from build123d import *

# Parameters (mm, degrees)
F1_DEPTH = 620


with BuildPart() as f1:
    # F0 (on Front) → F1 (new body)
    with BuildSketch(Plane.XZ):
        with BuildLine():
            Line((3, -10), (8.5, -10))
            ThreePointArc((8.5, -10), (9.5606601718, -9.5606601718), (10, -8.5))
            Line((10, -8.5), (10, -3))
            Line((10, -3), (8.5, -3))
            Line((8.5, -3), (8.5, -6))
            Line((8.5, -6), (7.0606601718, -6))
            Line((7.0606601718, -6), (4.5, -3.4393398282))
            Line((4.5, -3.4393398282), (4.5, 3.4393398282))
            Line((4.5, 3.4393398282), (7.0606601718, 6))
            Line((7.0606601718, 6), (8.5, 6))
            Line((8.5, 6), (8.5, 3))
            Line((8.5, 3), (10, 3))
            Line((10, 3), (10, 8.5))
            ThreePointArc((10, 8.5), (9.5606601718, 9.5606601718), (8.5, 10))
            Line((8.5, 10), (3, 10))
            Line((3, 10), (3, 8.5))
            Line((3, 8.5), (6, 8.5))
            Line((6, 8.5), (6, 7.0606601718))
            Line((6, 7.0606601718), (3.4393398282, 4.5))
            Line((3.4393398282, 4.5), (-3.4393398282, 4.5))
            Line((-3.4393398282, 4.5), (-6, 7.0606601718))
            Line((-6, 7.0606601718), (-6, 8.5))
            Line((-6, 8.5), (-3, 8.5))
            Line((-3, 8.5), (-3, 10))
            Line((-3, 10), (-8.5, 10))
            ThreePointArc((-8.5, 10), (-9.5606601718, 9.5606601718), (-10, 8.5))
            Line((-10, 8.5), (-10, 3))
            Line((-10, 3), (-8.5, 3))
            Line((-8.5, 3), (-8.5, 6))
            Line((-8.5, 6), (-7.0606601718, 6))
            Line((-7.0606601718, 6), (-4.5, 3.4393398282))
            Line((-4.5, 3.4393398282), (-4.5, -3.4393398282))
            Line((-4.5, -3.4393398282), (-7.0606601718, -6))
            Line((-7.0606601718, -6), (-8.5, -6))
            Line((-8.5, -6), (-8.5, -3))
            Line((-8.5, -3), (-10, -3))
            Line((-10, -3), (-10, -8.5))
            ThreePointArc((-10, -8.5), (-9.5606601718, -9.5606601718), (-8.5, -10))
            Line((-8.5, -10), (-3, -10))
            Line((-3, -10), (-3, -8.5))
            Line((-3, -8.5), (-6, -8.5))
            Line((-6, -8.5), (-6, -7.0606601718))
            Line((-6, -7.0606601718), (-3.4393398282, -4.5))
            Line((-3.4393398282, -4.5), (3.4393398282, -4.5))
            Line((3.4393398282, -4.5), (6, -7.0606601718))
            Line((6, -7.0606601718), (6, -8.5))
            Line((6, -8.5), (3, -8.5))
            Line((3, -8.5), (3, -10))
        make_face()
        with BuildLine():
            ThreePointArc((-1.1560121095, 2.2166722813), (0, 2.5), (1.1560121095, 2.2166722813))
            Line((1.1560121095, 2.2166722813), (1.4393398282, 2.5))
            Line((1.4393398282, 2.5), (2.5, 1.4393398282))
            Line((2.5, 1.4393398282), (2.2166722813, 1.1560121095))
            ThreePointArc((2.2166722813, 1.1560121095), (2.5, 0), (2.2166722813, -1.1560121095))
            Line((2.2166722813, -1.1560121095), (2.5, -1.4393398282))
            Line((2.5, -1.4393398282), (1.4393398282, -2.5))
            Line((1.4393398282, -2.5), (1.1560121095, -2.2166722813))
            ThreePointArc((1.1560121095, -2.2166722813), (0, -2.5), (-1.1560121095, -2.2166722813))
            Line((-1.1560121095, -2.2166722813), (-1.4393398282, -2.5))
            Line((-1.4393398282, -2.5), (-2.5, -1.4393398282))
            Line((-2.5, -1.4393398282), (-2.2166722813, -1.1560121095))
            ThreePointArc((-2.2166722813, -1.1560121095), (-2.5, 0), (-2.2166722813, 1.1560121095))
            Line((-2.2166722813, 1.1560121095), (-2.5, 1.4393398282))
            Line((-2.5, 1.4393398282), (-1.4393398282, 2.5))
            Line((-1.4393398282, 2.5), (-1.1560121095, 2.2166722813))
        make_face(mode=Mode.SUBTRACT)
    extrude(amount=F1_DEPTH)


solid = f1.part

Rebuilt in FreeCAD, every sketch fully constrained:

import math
import FreeCAD as App
import Part
import Sketcher
from FreeCAD import Vector

doc = App.newDocument("Part")
params = doc.addObject("Spreadsheet::Sheet", "Params")
for row, (alias, value) in enumerate([
    ("sketch1_radius", "1.5 mm"),
    ("sketch1_radius2", "2.5 mm"),
    ("sketch1_width", "3 mm"),
    ("sketch1_width2", "5.5 mm"),
    ("sketch1_length", "1.5 mm"),
    ("pad1_length", "620 mm"),
], start=1):
    params.set(f"A{row}", alias)
    params.set(f"B{row}", "=" + value)
    params.setAlias(f"B{row}", alias)

body = doc.addObject("PartDesign::Body", "Body")

sketch1 = body.newObject("Sketcher::SketchObject", "Sketch")
sketch1.AttachmentSupport = (doc.getObject("XZ_Plane"), [""])
sketch1.MapMode = "FlatFace"
sketch1.addGeometry([
    Part.LineSegment(Vector(3, -10, 0), Vector(8.5, -10, 0)),
    Part.ArcOfCircle(Part.Circle(Vector(8.5, -8.5, 0), Vector(0, 0, 1), 1.5), math.radians(-90), math.radians(0)),
    Part.LineSegment(Vector(10, -8.5, 0), Vector(10, -3, 0)),
    Part.LineSegment(Vector(10, -3, 0), Vector(8.5, -3, 0)),
    Part.LineSegment(Vector(8.5, -3, 0), Vector(8.5, -6, 0)),
    Part.LineSegment(Vector(8.5, -6, 0), Vector(7.06066, -6, 0)),
    Part.LineSegment(Vector(7.06066, -6, 0), Vector(4.5, -3.43934, 0)),
    Part.LineSegment(Vector(4.5, -3.43934, 0), Vector(4.5, 3.43934, 0)),
    Part.LineSegment(Vector(4.5, 3.43934, 0), Vector(7.06066, 6, 0)),
    Part.LineSegment(Vector(7.06066, 6, 0), Vector(8.5, 6, 0)),
    Part.LineSegment(Vector(8.5, 6, 0), Vector(8.5, 3, 0)),
    Part.LineSegment(Vector(8.5, 3, 0), Vector(10, 3, 0)),
    Part.LineSegment(Vector(10, 3, 0), Vector(10, 8.5, 0)),
    Part.ArcOfCircle(Part.Circle(Vector(8.5, 8.5, 0), Vector(0, 0, 1), 1.5), math.radians(0), math.radians(90)),
    Part.LineSegment(Vector(8.5, 10, 0), Vector(3, 10, 0)),
    Part.LineSegment(Vector(3, 10, 0), Vector(3, 8.5, 0)),
    Part.LineSegment(Vector(3, 8.5, 0), Vector(6, 8.5, 0)),
    Part.LineSegment(Vector(6, 8.5, 0), Vector(6, 7.06066, 0)),
    Part.LineSegment(Vector(6, 7.06066, 0), Vector(3.43934, 4.5, 0)),
    Part.LineSegment(Vector(3.43934, 4.5, 0), Vector(-3.43934, 4.5, 0)),
    Part.LineSegment(Vector(-3.43934, 4.5, 0), Vector(-6, 7.06066, 0)),
    Part.LineSegment(Vector(-6, 7.06066, 0), Vector(-6, 8.5, 0)),
    Part.LineSegment(Vector(-6, 8.5, 0), Vector(-3, 8.5, 0)),
    Part.LineSegment(Vector(-3, 8.5, 0), Vector(-3, 10, 0)),
    Part.LineSegment(Vector(-3, 10, 0), Vector(-8.5, 10, 0)),
    Part.ArcOfCircle(Part.Circle(Vector(-8.5, 8.5, 0), Vector(0, 0, 1), 1.5), math.radians(90), math.radians(180)),
    Part.LineSegment(Vector(-10, 8.5, 0), Vector(-10, 3, 0)),
    Part.LineSegment(Vector(-10, 3, 0), Vector(-8.5, 3, 0)),
    Part.LineSegment(Vector(-8.5, 3, 0), Vector(-8.5, 6, 0)),
    Part.LineSegment(Vector(-8.5, 6, 0), Vector(-7.06066, 6, 0)),
    Part.LineSegment(Vector(-7.06066, 6, 0), Vector(-4.5, 3.43934, 0)),
    Part.LineSegment(Vector(-4.5, 3.43934, 0), Vector(-4.5, -3.43934, 0)),
    Part.LineSegment(Vector(-4.5, -3.43934, 0), Vector(-7.06066, -6, 0)),
    Part.LineSegment(Vector(-7.06066, -6, 0), Vector(-8.5, -6, 0)),
    Part.LineSegment(Vector(-8.5, -6, 0), Vector(-8.5, -3, 0)),
    Part.LineSegment(Vector(-8.5, -3, 0), Vector(-10, -3, 0)),
    Part.LineSegment(Vector(-10, -3, 0), Vector(-10, -8.5, 0)),
    Part.ArcOfCircle(Part.Circle(Vector(-8.5, -8.5, 0), Vector(0, 0, 1), 1.5), math.radians(180), math.radians(270)),
    Part.LineSegment(Vector(-8.5, -10, 0), Vector(-3, -10, 0)),
    Part.LineSegment(Vector(-3, -10, 0), Vector(-3, -8.5, 0)),
    Part.LineSegment(Vector(-3, -8.5, 0), Vector(-6, -8.5, 0)),
    Part.LineSegment(Vector(-6, -8.5, 0), Vector(-6, -7.06066, 0)),
    Part.LineSegment(Vector(-6, -7.06066, 0), Vector(-3.43934, -4.5, 0)),
    Part.LineSegment(Vector(-3.43934, -4.5, 0), Vector(3.43934, -4.5, 0)),
    Part.LineSegment(Vector(3.43934, -4.5, 0), Vector(6, -7.06066, 0)),
    Part.LineSegment(Vector(6, -7.06066, 0), Vector(6, -8.5, 0)),
    Part.LineSegment(Vector(6, -8.5, 0), Vector(3, -8.5, 0)),
    Part.LineSegment(Vector(3, -8.5, 0), Vector(3, -10, 0)),
    Part.LineSegment(Vector(-1.43934, 2.5, 0), Vector(-1.156012, 2.216672, 0)),
    Part.ArcOfCircle(Part.Circle(Vector(0, 0, 0), Vector(0, 0, 1), 2.5), math.radians(62.457603), math.radians(117.542397)),
    Part.LineSegment(Vector(1.156012, 2.216672, 0), Vector(1.43934, 2.5, 0)),
    Part.LineSegment(Vector(1.43934, 2.5, 0), Vector(2.5, 1.43934, 0)),
    Part.LineSegment(Vector(2.5, 1.43934, 0), Vector(2.216672, 1.156012, 0)),
    Part.ArcOfCircle(Part.Circle(Vector(0, 0, 0), Vector(0, 0, 1), 2.5), math.radians(-27.542397), math.radians(27.542397)),
    Part.LineSegment(Vector(2.216672, -1.156012, 0), Vector(2.5, -1.43934, 0)),
    Part.LineSegment(Vector(2.5, -1.43934, 0), Vector(1.43934, -2.5, 0)),
    Part.LineSegment(Vector(1.43934, -2.5, 0), Vector(1.156012, -2.216672, 0)),
    Part.ArcOfCircle(Part.Circle(Vector(0, 0, 0), Vector(0, 0, 1), 2.5), math.radians(-117.542397), math.radians(-62.457603)),
    Part.LineSegment(Vector(-1.156012, -2.216672, 0), Vector(-1.43934, -2.5, 0)),
    Part.LineSegment(Vector(-1.43934, -2.5, 0), Vector(-2.5, -1.43934, 0)),
    Part.LineSegment(Vector(-2.5, -1.43934, 0), Vector(-2.216672, -1.156012, 0)),
    Part.ArcOfCircle(Part.Circle(Vector(0, 0, 0), Vector(0, 0, 1), 2.5), math.radians(152.457603), math.radians(207.542397)),
    Part.LineSegment(Vector(-2.216672, 1.156012, 0), Vector(-2.5, 1.43934, 0)),
    Part.LineSegment(Vector(-2.5, 1.43934, 0), Vector(-1.43934, 2.5, 0)),
], False)
sketch1.addConstraint([
    Sketcher.Constraint("Tangent", 0, 2, 1, 1),
    Sketcher.Constraint("Tangent", 1, 2, 2, 1),
    Sketcher.Constraint("Coincident", 2, 2, 3, 1),
    Sketcher.Constraint("Coincident", 3, 2, 4, 1),
    Sketcher.Constraint("Coincident", 4, 2, 5, 1),
    Sketcher.Constraint("Coincident", 5, 2, 6, 1),
    Sketcher.Constraint("Coincident", 6, 2, 7, 1),
    Sketcher.Constraint("Coincident", 7, 2, 8, 1),
    Sketcher.Constraint("Coincident", 8, 2, 9, 1),
    Sketcher.Constraint("Coincident", 9, 2, 10, 1),
    Sketcher.Constraint("Coincident", 10, 2, 11, 1),
    Sketcher.Constraint("Coincident", 11, 2, 12, 1),
    Sketcher.Constraint("Tangent", 12, 2, 13, 1),
    Sketcher.Constraint("Tangent", 13, 2, 14, 1),
    Sketcher.Constraint("Coincident", 14, 2, 15, 1),
    Sketcher.Constraint("Coincident", 15, 2, 16, 1),
    Sketcher.Constraint("Coincident", 16, 2, 17, 1),
    Sketcher.Constraint("Coincident", 17, 2, 18, 1),
    Sketcher.Constraint("Coincident", 18, 2, 19, 1),
    Sketcher.Constraint("Coincident", 19, 2, 20, 1),
    Sketcher.Constraint("Coincident", 20, 2, 21, 1),
    Sketcher.Constraint("Coincident", 21, 2, 22, 1),
    Sketcher.Constraint("Coincident", 22, 2, 23, 1),
    Sketcher.Constraint("Coincident", 23, 2, 24, 1),
    Sketcher.Constraint("Tangent", 24, 2, 25, 1),
    Sketcher.Constraint("Tangent", 25, 2, 26, 1),
    Sketcher.Constraint("Coincident", 26, 2, 27, 1),
    Sketcher.Constraint("Coincident", 27, 2, 28, 1),
    Sketcher.Constraint("Coincident", 28, 2, 29, 1),
    Sketcher.Constraint("Coincident", 29, 2, 30, 1),
    Sketcher.Constraint("Coincident", 30, 2, 31, 1),
    Sketcher.Constraint("Coincident", 31, 2, 32, 1),
    Sketcher.Constraint("Coincident", 32, 2, 33, 1),
    Sketcher.Constraint("Coincident", 33, 2, 34, 1),
    Sketcher.Constraint("Coincident", 34, 2, 35, 1),
    Sketcher.Constraint("Coincident", 35, 2, 36, 1),
    Sketcher.Constraint("Tangent", 36, 2, 37, 1),
    Sketcher.Constraint("Tangent", 37, 2, 38, 1),
    Sketcher.Constraint("Coincident", 38, 2, 39, 1),
    Sketcher.Constraint("Coincident", 39, 2, 40, 1),
    Sketcher.Constraint("Coincident", 40, 2, 41, 1),
    Sketcher.Constraint("Coincident", 41, 2, 42, 1),
    Sketcher.Constraint("Coincident", 42, 2, 43, 1),
    Sketcher.Constraint("Coincident", 43, 2, 44, 1),
    Sketcher.Constraint("Coincident", 44, 2, 45, 1),
    Sketcher.Constraint("Coincident", 45, 2, 46, 1),
    Sketcher.Constraint("Coincident", 46, 2, 47, 1),
    Sketcher.Constraint("Coincident", 47, 2, 0, 1),
    Sketcher.Constraint("Coincident", 48, 2, 49, 2),
    Sketcher.Constraint("Coincident", 49, 1, 50, 1),
    Sketcher.Constraint("Coincident", 50, 2, 51, 1),
    Sketcher.Constraint("Coincident", 51, 2, 52, 1),
    Sketcher.Constraint("Coincident", 52, 2, 53, 2),
    Sketcher.Constraint("Coincident", 53, 1, 54, 1),
    Sketcher.Constraint("Coincident", 54, 2, 55, 1),
    Sketcher.Constraint("Coincident", 55, 2, 56, 1),
    Sketcher.Constraint("Coincident", 56, 2, 57, 2),
    Sketcher.Constraint("Coincident", 57, 1, 58, 1),
    Sketcher.Constraint("Coincident", 58, 2, 59, 1),
    Sketcher.Constraint("Coincident", 59, 2, 60, 1),
    Sketcher.Constraint("Coincident", 60, 2, 61, 2),
    Sketcher.Constraint("Coincident", 61, 1, 62, 1),
    Sketcher.Constraint("Coincident", 62, 2, 63, 1),
    Sketcher.Constraint("Coincident", 63, 2, 48, 1),
    Sketcher.Constraint("Horizontal", 0),
    Sketcher.Constraint("Vertical", 2),
    Sketcher.Constraint("Horizontal", 3),
    Sketcher.Constraint("Vertical", 4),
    Sketcher.Constraint("Horizontal", 5),
    Sketcher.Constraint("Vertical", 7),
    Sketcher.Constraint("Horizontal", 9),
    Sketcher.Constraint("Vertical", 10),
    Sketcher.Constraint("Horizontal", 11),
    Sketcher.Constraint("Vertical", 12),
    Sketcher.Constraint("Horizontal", 14),
    Sketcher.Constraint("Vertical", 15),
    Sketcher.Constraint("Horizontal", 16),
    Sketcher.Constraint("Vertical", 17),
    Sketcher.Constraint("Horizontal", 19),
    Sketcher.Constraint("Vertical", 21),
    Sketcher.Constraint("Horizontal", 22),
    Sketcher.Constraint("Vertical", 23),
    Sketcher.Constraint("Horizontal", 24),
    Sketcher.Constraint("Vertical", 26),
    Sketcher.Constraint("Horizontal", 27),
    Sketcher.Constraint("Vertical", 28),
    Sketcher.Constraint("Horizontal", 29),
    Sketcher.Constraint("Vertical", 31),
    Sketcher.Constraint("Horizontal", 33),
    Sketcher.Constraint("Vertical", 34),
    Sketcher.Constraint("Horizontal", 35),
    Sketcher.Constraint("Vertical", 36),
    Sketcher.Constraint("Horizontal", 38),
    Sketcher.Constraint("Vertical", 39),
    Sketcher.Constraint("Horizontal", 40),
    Sketcher.Constraint("Vertical", 41),
    Sketcher.Constraint("Horizontal", 43),
    Sketcher.Constraint("Vertical", 45),
    Sketcher.Constraint("Horizontal", 46),
    Sketcher.Constraint("Vertical", 47),
    Sketcher.Constraint("Coincident", 49, 3, -1, 1),
    Sketcher.Constraint("Coincident", 53, 3, -1, 1),
    Sketcher.Constraint("Coincident", 57, 3, -1, 1),
    Sketcher.Constraint("Coincident", 61, 3, -1, 1),
    Sketcher.Constraint("Equal", 1, 13),
    Sketcher.Constraint("Equal", 13, 25),
    Sketcher.Constraint("Equal", 25, 37),
    Sketcher.Constraint("Equal", 49, 53),
    Sketcher.Constraint("Equal", 53, 57),
    Sketcher.Constraint("Equal", 57, 61),
    Sketcher.Constraint("Symmetric", 1, 3, 25, 3, -1, 1),
    Sketcher.Constraint("Symmetric", 13, 3, 37, 3, -1, 1),
    Sketcher.Constraint("Symmetric", 3, 2, 27, 2, -1, 1),
    Sketcher.Constraint("Symmetric", 5, 2, 29, 2, -1, 1),
    Sketcher.Constraint("Symmetric", 6, 2, 30, 2, -1, 1),
    Sketcher.Constraint("Symmetric", 8, 2, 32, 2, -1, 1),
    Sketcher.Constraint("Symmetric", 10, 2, 34, 2, -1, 1),
    Sketcher.Constraint("Symmetric", 15, 2, 39, 2, -1, 1),
    Sketcher.Constraint("Symmetric", 17, 2, 41, 2, -1, 1),
    Sketcher.Constraint("Symmetric", 18, 2, 42, 2, -1, 1),
    Sketcher.Constraint("Symmetric", 20, 2, 44, 2, -1, 1),
    Sketcher.Constraint("Symmetric", 22, 2, 46, 2, -1, 1),
    Sketcher.Constraint("Symmetric", 50, 2, 58, 2, -1, 1),
    Sketcher.Constraint("Symmetric", 51, 2, 59, 2, -1, 1),
    Sketcher.Constraint("Symmetric", 54, 2, 62, 2, -1, 1),
    Sketcher.Constraint("Symmetric", 55, 2, 63, 2, -1, 1),
    Sketcher.Constraint("Symmetric", 13, 3, 25, 3, -2),
    Sketcher.Constraint("Symmetric", 17, 2, 20, 2, -2),
    Sketcher.Constraint("Symmetric", 15, 2, 22, 2, -2),
    Sketcher.Constraint("Symmetric", 10, 2, 27, 2, -2),
    Sketcher.Constraint("Symmetric", 8, 2, 29, 2, -2),
    Sketcher.Constraint("Symmetric", 55, 2, 58, 2, -2),
    Sketcher.Constraint("Symmetric", 54, 2, 59, 2, -2),
    Sketcher.Constraint("Perpendicular", 6, 8),
    Sketcher.Constraint("Parallel", 8, 18),
    Sketcher.Constraint("Perpendicular", 18, 20),
    Sketcher.Constraint("Perpendicular", 30, 32),
    Sketcher.Constraint("Perpendicular", 42, 44),
    Sketcher.Constraint("Parallel", 44, 48),
    Sketcher.Constraint("Perpendicular", 48, 50),
    Sketcher.Constraint("Perpendicular", 50, 51),
    Sketcher.Constraint("Perpendicular", 51, 52),
    Sketcher.Constraint("Perpendicular", 52, 54),
    Sketcher.Constraint("Perpendicular", 54, 55),
    Sketcher.Constraint("Perpendicular", 55, 56),
    Sketcher.Constraint("Perpendicular", 56, 58),
    Sketcher.Constraint("Perpendicular", 59, 60),
    Sketcher.Constraint("Perpendicular", 60, 62),
    Sketcher.Constraint("Horizontal", 12, 2, 15, 2),
    Sketcher.Constraint("Vertical", 0, 2, 3, 2),
    Sketcher.Constraint("Equal", 38, 2),
    Sketcher.Constraint("Equal", 46, 4),
    Sketcher.Constraint("Equal", 43, 7),
    Sketcher.Constraint("Equal", 33, 17),
    Sketcher.Constraint("Equal", 8, 18),
    Sketcher.Constraint("Equal", 50, 52),
    Sketcher.Constraint("Radius", 1, 1.5),
    Sketcher.Constraint("Radius", 49, 2.5),
    Sketcher.Constraint("DistanceX", 16, 1, 16, 2, 3.0),
    Sketcher.Constraint("DistanceX", 0, 1, 0, 2, 5.5),
    Sketcher.Constraint("DistanceY", 0, 2, -1, 1, 10.0),
    Sketcher.Constraint("Distance", 51, 1.5),
    Sketcher.Constraint("DistanceX", -1, 1, 6, 2, 4.5),
    Sketcher.Constraint("DistanceY", -1, 1, 50, 2, 2.5),
    Sketcher.Constraint("DistanceX", 5, 2, 5, 1, 1.43934),
])
sketch1.setExpression("Constraints[156]", "Params.sketch1_radius")
sketch1.setExpression("Constraints[157]", "Params.sketch1_radius2")
sketch1.setExpression("Constraints[158]", "Params.sketch1_width")
sketch1.setExpression("Constraints[159]", "Params.sketch1_width2")
sketch1.setExpression("Constraints[161]", "Params.sketch1_length")
pad1 = body.newObject("PartDesign::Pad", "Pad")
pad1.Profile = sketch1
pad1.setExpression("Length", "Params.pad1_length")

doc.recompute()
